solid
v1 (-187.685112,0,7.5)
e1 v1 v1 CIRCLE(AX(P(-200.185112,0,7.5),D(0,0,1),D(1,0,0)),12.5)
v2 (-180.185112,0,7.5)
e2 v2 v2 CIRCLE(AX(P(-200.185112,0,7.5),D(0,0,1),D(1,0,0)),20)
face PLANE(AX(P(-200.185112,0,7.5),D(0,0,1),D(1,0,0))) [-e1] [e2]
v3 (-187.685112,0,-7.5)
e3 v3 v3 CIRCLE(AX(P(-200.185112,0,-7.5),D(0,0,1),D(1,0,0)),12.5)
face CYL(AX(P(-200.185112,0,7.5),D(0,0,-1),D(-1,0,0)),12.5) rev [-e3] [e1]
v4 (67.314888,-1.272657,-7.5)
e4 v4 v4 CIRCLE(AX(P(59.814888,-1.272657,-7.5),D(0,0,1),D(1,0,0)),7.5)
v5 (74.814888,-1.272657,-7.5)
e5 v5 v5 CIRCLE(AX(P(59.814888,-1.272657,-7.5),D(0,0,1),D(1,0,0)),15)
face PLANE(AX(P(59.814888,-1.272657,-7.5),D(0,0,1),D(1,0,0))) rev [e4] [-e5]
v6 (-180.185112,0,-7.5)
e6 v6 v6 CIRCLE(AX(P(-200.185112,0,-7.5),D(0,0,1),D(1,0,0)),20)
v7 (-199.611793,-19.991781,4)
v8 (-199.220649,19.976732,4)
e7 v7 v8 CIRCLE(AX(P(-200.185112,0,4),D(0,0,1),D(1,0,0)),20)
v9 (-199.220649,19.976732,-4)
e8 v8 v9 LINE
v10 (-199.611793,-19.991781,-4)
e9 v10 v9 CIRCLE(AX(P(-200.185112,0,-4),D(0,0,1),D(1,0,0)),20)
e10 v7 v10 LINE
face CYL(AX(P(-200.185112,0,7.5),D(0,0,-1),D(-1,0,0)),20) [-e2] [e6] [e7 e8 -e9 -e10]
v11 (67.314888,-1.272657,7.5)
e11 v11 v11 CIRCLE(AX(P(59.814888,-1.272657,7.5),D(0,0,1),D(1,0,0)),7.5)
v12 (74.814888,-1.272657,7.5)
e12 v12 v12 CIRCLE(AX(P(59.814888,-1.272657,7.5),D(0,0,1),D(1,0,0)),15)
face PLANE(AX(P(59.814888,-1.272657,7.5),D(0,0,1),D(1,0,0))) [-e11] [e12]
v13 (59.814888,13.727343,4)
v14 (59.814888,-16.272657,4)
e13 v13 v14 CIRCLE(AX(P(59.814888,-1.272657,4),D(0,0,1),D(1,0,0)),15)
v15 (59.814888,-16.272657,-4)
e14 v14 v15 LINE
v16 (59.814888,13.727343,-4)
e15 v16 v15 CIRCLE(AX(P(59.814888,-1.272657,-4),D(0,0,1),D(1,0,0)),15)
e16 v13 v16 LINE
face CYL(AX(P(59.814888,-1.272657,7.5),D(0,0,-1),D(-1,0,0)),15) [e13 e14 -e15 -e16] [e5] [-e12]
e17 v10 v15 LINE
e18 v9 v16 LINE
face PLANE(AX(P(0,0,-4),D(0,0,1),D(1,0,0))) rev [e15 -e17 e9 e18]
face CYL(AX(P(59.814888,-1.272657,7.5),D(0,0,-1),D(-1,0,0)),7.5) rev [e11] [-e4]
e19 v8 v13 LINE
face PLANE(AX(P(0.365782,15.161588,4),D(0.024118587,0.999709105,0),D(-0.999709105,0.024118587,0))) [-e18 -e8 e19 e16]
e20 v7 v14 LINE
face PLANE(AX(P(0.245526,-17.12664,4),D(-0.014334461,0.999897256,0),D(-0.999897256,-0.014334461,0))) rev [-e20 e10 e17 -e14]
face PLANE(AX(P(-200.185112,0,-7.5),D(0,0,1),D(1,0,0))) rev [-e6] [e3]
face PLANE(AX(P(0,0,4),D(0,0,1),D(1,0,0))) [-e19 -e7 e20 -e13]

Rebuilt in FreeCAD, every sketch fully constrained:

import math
import FreeCAD as App
import Part
import Sketcher
Q = App.Units.Quantity

doc = App.newDocument("Part")
body = doc.addObject("PartDesign::Body", "Body")

# Sketch on XY plane
sketch1 = body.newObject("Sketcher::SketchObject", "Sketch")
sketch1.AttachmentSupport = (doc.getObject("XY_Plane"), [""])
sketch1.MapMode = "FlatFace"
sketch1.addGeometry(Part.LineSegment(App.Vector(60, 14, 0), App.Vector(-199, 20, 0)), False)
sketch1.addGeometry(Part.ArcOfCircle(Part.Circle(App.Vector(-200, 0, 0), App.Vector(0, 0, 1), 20), math.radians(0), math.radians(87)), False)
sketch1.addGeometry(Part.ArcOfCircle(Part.Circle(App.Vector(-200, 0, 0), App.Vector(0, 0, 1), 20), math.radians(-88), math.radians(0)), False)
sketch1.addGeometry(Part.LineSegment(App.Vector(-200, -20, 0), App.Vector(60, -16, 0)), False)
sketch1.addGeometry(Part.ArcOfCircle(Part.Circle(App.Vector(60, -1, 0), App.Vector(0, 0, 1), 15), math.radians(90), math.radians(270)), False)
sketch1.addConstraint(Sketcher.Constraint("Coincident", 0, 2, 1, 2))
sketch1.addConstraint(Sketcher.Constraint("Tangent", 1, 1, 2, 2))
sketch1.addConstraint(Sketcher.Constraint("Coincident", 2, 1, 3, 1))
sketch1.addConstraint(Sketcher.Constraint("Coincident", 3, 2, 4, 2))
sketch1.addConstraint(Sketcher.Constraint("Coincident", 4, 1, 0, 1))
sketch1.addConstraint(Sketcher.Constraint("Equal", 1, 2))
sketch1.addConstraint(Sketcher.Constraint("PointOnObject", 1, 3, -1))
sketch1.addConstraint(Sketcher.Constraint("PointOnObject", 1, 1, -1))
sketch1.addConstraint(Sketcher.Constraint("Vertical", 4, 3, 3, 2))
sketch1.addConstraint(Sketcher.Constraint("Vertical", 3, 2, 4, 1))
sketch1.addConstraint(Sketcher.Constraint("Radius", 1, Q("20 mm")))
sketch1.addConstraint(Sketcher.Constraint("Radius", 4, Q("15 mm")))
sketch1.addConstraint(Sketcher.Constraint("DistanceX", 2, 3, 4, 3, Q("260 mm")))
sketch1.addConstraint(Sketcher.Constraint("Distance", 0, Q("259.110911 mm")))
sketch1.addConstraint(Sketcher.Constraint("DistanceX", 0, 2, -1, 1, Q("199.220649 mm")))
sketch1.addConstraint(Sketcher.Constraint("DistanceY", 2, 1, -1, 1, Q("19.991781 mm")))
sketch1.addConstraint(Sketcher.Constraint("DistanceY", 4, 3, 0, 2, Q("21.249389 mm")))
pad1 = body.newObject("PartDesign::Pad", "Pad")
pad1.Profile = sketch1
pad1.Length = 8
pad1.Midplane = True

# Sketch on XY plane
sketch2 = body.newObject("Sketcher::SketchObject", "Sketch001")
sketch2.AttachmentSupport = (doc.getObject("XY_Plane"), [""])
sketch2.MapMode = "FlatFace"
sketch2.addGeometry(Part.Circle(App.Vector(-200, 0, 0), App.Vector(0, 0, 1), 20), False)
sketch2.addGeometry(Part.Circle(App.Vector(-200, 0, 0), App.Vector(0, 0, 1), 12), False)
sketch2.addGeometry(Part.Circle(App.Vector(60, -1, 0), App.Vector(0, 0, 1), 15), False)
sketch2.addGeometry(Part.Circle(App.Vector(60, -1, 0), App.Vector(0, 0, 1), 8), False)
sketch2.addConstraint(Sketcher.Constraint("Coincident", 1, 3, 0, 3))
sketch2.addConstraint(Sketcher.Constraint("Coincident", 3, 3, 2, 3))
sketch2.addConstraint(Sketcher.Constraint("PointOnObject", 0, 3, -1))
sketch2.addConstraint(Sketcher.Constraint("Diameter", 0, Q("40 mm")))
sketch2.addConstraint(Sketcher.Constraint("Diameter", 1, Q("25 mm")))
sketch2.addConstraint(Sketcher.Constraint("Diameter", 2, Q("30 mm")))
sketch2.addConstraint(Sketcher.Constraint("Diameter", 3, Q("15 mm")))
sketch2.addConstraint(Sketcher.Constraint("DistanceX", 0, 3, 2, 3, Q("260 mm")))
sketch2.addConstraint(Sketcher.Constraint("DistanceX", 0, 3, -1, 1, Q("200.185112 mm")))
sketch2.addConstraint(Sketcher.Constraint("DistanceY", 2, 3, -1, 1, Q("1.272657 mm")))
pad2 = body.newObject("PartDesign::Pad", "Pad001")
pad2.Profile = sketch2
pad2.Length = 15
pad2.Midplane = True

doc.recompute()
